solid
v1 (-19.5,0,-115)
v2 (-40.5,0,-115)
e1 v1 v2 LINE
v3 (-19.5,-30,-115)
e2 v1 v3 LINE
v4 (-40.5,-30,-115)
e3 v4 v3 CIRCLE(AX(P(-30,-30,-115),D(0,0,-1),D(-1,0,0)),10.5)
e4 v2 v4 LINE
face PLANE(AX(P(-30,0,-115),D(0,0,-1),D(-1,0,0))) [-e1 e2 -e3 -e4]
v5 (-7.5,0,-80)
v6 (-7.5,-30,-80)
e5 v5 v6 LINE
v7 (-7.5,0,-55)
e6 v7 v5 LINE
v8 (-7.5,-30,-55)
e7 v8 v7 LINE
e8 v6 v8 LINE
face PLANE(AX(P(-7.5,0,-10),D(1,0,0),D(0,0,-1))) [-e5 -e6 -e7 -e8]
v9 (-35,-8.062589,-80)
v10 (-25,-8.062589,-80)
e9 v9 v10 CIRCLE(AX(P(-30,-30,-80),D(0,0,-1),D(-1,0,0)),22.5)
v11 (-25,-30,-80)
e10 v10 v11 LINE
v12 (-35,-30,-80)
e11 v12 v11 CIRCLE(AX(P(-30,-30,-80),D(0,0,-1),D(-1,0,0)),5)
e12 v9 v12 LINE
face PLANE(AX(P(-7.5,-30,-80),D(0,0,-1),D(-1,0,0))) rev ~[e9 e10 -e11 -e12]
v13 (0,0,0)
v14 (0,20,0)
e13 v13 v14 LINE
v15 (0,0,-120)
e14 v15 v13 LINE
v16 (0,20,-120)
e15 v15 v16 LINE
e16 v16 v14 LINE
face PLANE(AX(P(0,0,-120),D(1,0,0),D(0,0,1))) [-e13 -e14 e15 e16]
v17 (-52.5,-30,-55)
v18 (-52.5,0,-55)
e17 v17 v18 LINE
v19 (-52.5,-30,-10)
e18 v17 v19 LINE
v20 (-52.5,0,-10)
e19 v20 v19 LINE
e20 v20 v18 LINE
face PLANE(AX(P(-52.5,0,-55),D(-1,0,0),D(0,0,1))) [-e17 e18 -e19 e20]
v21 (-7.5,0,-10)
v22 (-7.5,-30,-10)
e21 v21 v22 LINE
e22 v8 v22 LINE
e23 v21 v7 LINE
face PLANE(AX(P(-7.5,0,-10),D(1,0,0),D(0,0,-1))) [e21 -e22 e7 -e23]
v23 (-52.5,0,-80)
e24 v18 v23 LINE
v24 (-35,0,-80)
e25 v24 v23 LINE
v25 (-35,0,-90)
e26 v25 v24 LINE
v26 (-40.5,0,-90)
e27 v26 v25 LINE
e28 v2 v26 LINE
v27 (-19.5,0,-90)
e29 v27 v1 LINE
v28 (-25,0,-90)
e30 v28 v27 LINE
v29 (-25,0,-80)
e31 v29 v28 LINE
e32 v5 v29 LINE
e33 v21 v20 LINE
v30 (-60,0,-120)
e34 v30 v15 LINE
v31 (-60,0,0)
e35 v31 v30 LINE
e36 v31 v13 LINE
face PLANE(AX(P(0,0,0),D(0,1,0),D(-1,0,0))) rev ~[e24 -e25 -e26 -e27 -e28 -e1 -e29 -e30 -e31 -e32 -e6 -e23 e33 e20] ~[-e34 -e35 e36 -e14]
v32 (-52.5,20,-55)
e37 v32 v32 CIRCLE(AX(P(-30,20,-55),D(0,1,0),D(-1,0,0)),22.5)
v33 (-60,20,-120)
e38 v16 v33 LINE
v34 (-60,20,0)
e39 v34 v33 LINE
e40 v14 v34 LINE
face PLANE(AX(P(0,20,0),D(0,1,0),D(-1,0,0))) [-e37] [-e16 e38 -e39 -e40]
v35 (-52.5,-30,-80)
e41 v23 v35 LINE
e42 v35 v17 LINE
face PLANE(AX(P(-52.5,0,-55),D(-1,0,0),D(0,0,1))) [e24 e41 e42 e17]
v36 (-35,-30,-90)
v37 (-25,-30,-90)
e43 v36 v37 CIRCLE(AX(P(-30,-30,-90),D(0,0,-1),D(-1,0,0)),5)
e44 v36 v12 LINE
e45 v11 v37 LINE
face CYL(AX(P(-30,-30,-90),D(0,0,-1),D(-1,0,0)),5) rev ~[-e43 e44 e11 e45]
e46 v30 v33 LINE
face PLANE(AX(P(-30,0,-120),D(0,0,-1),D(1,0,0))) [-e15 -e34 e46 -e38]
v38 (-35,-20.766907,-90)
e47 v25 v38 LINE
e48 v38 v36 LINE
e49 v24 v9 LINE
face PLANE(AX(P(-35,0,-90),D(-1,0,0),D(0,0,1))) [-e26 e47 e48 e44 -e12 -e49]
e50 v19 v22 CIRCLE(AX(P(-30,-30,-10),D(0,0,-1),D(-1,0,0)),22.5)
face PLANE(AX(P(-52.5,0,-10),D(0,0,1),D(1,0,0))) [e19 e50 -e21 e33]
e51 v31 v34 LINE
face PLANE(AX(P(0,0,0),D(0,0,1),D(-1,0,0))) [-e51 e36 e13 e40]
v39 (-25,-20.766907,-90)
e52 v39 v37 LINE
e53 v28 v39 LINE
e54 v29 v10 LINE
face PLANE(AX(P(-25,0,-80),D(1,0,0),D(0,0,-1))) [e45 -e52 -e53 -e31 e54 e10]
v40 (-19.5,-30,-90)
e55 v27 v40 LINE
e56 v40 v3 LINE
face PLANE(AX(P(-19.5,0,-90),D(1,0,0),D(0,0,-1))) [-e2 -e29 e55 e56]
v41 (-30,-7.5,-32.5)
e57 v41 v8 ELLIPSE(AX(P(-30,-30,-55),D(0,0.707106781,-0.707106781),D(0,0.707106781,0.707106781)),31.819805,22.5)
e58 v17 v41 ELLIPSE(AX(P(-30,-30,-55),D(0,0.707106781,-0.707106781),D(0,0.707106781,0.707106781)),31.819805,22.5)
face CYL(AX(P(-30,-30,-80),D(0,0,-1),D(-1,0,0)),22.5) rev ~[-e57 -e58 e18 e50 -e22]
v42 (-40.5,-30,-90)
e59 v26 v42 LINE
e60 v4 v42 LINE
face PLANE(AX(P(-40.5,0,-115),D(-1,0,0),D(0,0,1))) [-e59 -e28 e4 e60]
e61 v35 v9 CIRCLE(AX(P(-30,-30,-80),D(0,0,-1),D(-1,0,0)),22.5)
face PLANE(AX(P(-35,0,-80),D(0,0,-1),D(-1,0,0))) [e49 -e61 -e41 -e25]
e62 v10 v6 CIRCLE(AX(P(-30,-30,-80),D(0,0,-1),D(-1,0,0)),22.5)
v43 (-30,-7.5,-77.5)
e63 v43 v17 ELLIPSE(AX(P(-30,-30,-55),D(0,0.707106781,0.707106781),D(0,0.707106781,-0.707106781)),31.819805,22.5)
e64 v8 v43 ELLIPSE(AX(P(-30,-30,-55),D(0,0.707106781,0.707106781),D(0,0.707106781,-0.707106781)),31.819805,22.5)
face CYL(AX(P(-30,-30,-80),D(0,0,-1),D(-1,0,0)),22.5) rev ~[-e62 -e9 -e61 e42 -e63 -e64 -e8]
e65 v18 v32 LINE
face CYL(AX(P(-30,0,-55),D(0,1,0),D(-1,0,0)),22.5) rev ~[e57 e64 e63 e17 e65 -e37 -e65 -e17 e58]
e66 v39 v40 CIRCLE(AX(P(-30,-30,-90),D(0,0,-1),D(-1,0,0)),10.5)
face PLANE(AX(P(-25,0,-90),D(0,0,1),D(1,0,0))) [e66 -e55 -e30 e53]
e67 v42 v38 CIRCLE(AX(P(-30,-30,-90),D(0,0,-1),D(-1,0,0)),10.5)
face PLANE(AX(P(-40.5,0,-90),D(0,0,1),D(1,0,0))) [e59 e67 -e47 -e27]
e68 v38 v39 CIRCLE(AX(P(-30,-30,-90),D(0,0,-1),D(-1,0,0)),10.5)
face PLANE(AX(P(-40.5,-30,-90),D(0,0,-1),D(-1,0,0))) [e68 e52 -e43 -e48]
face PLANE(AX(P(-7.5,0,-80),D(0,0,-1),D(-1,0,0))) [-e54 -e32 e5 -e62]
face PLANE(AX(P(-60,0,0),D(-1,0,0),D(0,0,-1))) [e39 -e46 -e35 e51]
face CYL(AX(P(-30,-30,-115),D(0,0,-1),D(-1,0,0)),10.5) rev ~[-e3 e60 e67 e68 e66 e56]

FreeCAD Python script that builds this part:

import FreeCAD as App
import Part
import Sketcher

V = App.Vector
Q = App.Units.Quantity

doc = App.newDocument("Part")
body = doc.addObject("PartDesign::Body", "Body")

sketch1 = body.newObject("Sketcher::SketchObject", "Sketch")
sketch1.AttachmentSupport = (doc.getObject("XZ_Plane"), [""])
sketch1.MapMode = "FlatFace"
sketch1.addGeometry([
    Part.LineSegment(V(0, 0, 0), V(0, -120, 0)),
    Part.LineSegment(V(0, -120, 0), V(-60, -120, 0)),
    Part.LineSegment(V(-60, -120, 0), V(-60, 0, 0)),
    Part.LineSegment(V(-60, 0, 0), V(0, 0, 0)),
], False)
sketch1.addConstraint([
    Sketcher.Constraint("Coincident", 0, 2, 1, 1),
    Sketcher.Constraint("Coincident", 1, 2, 2, 1),
    Sketcher.Constraint("Coincident", 2, 2, 3, 1),
    Sketcher.Constraint("Coincident", 3, 2, 0, 1),
    Sketcher.Constraint("Vertical", 0),
    Sketcher.Constraint("Horizontal", 1),
    Sketcher.Constraint("Vertical", 2),
    Sketcher.Constraint("Horizontal", 3),
    Sketcher.Constraint("Coincident", 3, 2, -1, 1),
    Sketcher.Constraint("DistanceX", 1, 2, 1, 1, Q("60 mm")),
    Sketcher.Constraint("DistanceY", 0, 2, 0, 1, Q("120 mm")),
])
pad1 = body.newObject("PartDesign::Pad", "Pad")
pad1.Profile = sketch1
pad1.Length = 20
pad1.Reversed = True

sketch2 = body.newObject("Sketcher::SketchObject", "Sketch001")
sketch2.AttachmentSupport = (doc.getObject("XZ_Plane"), [""])
sketch2.MapMode = "FlatFace"
sketch2.addGeometry([
    Part.LineSegment(V(-52.5, -10, 0), V(-7.5, -10, 0)),
    Part.LineSegment(V(-7.5, -10, 0), V(-7.5, -80, 0)),
    Part.LineSegment(V(-7.5, -80, 0), V(-25, -80, 0)),
    Part.LineSegment(V(-25, -80, 0), V(-25, -90, 0)),
    Part.LineSegment(V(-25, -90, 0), V(-19.5, -90, 0)),
    Part.LineSegment(V(-19.5, -90, 0), V(-19.5, -115, 0)),
    Part.LineSegment(V(-19.5, -115, 0), V(-40.5, -115, 0)),
    Part.LineSegment(V(-40.5, -115, 0), V(-40.5, -90, 0)),
    Part.LineSegment(V(-40.5, -90, 0), V(-35, -90, 0)),
    Part.LineSegment(V(-35, -90, 0), V(-35, -80, 0)),
    Part.LineSegment(V(-35, -80, 0), V(-52.5, -80, 0)),
    Part.LineSegment(V(-52.5, -80, 0), V(-52.5, -10, 0)),
], False)
sketch2.addConstraint([
    Sketcher.Constraint("Coincident", 0, 2, 1, 1),
    Sketcher.Constraint("Coincident", 1, 2, 2, 1),
    Sketcher.Constraint("Coincident", 2, 2, 3, 1),
    Sketcher.Constraint("Coincident", 3, 2, 4, 1),
    Sketcher.Constraint("Coincident", 4, 2, 5, 1),
    Sketcher.Constraint("Coincident", 5, 2, 6, 1),
    Sketcher.Constraint("Coincident", 6, 2, 7, 1),
    Sketcher.Constraint("Coincident", 7, 2, 8, 1),
    Sketcher.Constraint("Coincident", 8, 2, 9, 1),
    Sketcher.Constraint("Coincident", 9, 2, 10, 1),
    Sketcher.Constraint("Coincident", 10, 2, 11, 1),
    Sketcher.Constraint("Coincident", 11, 2, 0, 1),
    Sketcher.Constraint("Horizontal", 0),
    Sketcher.Constraint("Vertical", 1),
    Sketcher.Constraint("Horizontal", 2),
    Sketcher.Constraint("Vertical", 3),
    Sketcher.Constraint("Horizontal", 4),
    Sketcher.Constraint("Vertical", 5),
    Sketcher.Constraint("Horizontal", 6),
    Sketcher.Constraint("Vertical", 7),
    Sketcher.Constraint("Horizontal", 8),
    Sketcher.Constraint("Vertical", 9),
    Sketcher.Constraint("Horizontal", 10),
    Sketcher.Constraint("Vertical", 11),
    Sketcher.Constraint("Horizontal", 4, 2, 7, 2),
    Sketcher.Constraint("Horizontal", 2, 2, 9, 2),
    Sketcher.Constraint("Equal", 4, 8),
    Sketcher.Constraint("Equal", 2, 10),
    Sketcher.Constraint("DistanceX", 0, 1, 0, 2, Q("45 mm")),
    Sketcher.Constraint("DistanceX", 6, 2, 6, 1, Q("21 mm")),
    Sketcher.Constraint("DistanceY", 1, 2, 1, 1, Q("70 mm")),
    Sketcher.Constraint("DistanceY", 3, 2, 3, 1, Q("10 mm")),
    Sketcher.Constraint("DistanceY", 5, 2, 5, 1, Q("25 mm")),
    Sketcher.Constraint("DistanceY", 0, 2, -1, 1, Q("10 mm")),
    Sketcher.Constraint("DistanceX", 2, 2, -1, 1, Q("25 mm")),
    Sketcher.Constraint("DistanceX", 8, 2, -1, 1, Q("35 mm")),
])
pad2 = body.newObject("PartDesign::Pad", "Pad001")
pad2.Profile = sketch2
pad2.Length = 30

sketch3 = body.newObject("Sketcher::SketchObject", "Sketch002")
sketch3.AttachmentSupport = (doc.getObject("XZ_Plane"), [""])
sketch3.MapMode = "FlatFace"
sketch3.addGeometry(Part.Circle(V(-30, -55, 0), V(0, 0, 1), 22.5), False)
sketch3.addConstraint([
    Sketcher.Constraint("Diameter", 0, Q("45 mm")),
    Sketcher.Constraint("DistanceX", 0, 3, -1, 1, Q("30 mm")),
    Sketcher.Constraint("DistanceY", 0, 3, -1, 1, Q("55 mm")),
])
pocket1 = body.newObject("PartDesign::Pocket", "Pocket")
pocket1.Profile = sketch3
pocket1.Type = "ThroughAll"
pocket1.Midplane = True

sketch4 = body.newObject("Sketcher::SketchObject", "Sketch003")
sketch4.AttachmentSupport = (doc.getObject("XY_Plane"), [""])
sketch4.MapMode = "FlatFace"
sketch4.AttachmentOffset = App.Placement(V(0, 0, -115), App.Rotation())
sketch4.addGeometry(Part.Circle(V(-30, -30, 0), V(0, 0, 1), 10.5), False)
sketch4.addConstraint([
    Sketcher.Constraint("Diameter", 0, Q("21 mm")),
    Sketcher.Constraint("DistanceX", 0, 3, -1, 1, Q("30 mm")),
    Sketcher.Constraint("DistanceY", 0, 3, -1, 1, Q("30 mm")),
])
pocket2 = body.newObject("PartDesign::Pocket", "Pocket001")
pocket2.Profile = sketch4
pocket2.Length = 25
pocket2.Reversed = True

sketch5 = body.newObject("Sketcher::SketchObject", "Sketch004")
sketch5.AttachmentSupport = (doc.getObject("XY_Plane"), [""])
sketch5.MapMode = "FlatFace"
sketch5.AttachmentOffset = App.Placement(V(0, 0, -80), App.Rotation())
sketch5.addGeometry(Part.Circle(V(-30, -30, 0), V(0, 0, 1), 22.5), False)
sketch5.addConstraint([
    Sketcher.Constraint("Diameter", 0, Q("45 mm")),
    Sketcher.Constraint("DistanceX", 0, 3, -1, 1, Q("30 mm")),
    Sketcher.Constraint("DistanceY", 0, 3, -1, 1, Q("30 mm")),
])
pocket3 = body.newObject("PartDesign::Pocket", "Pocket002")
pocket3.Profile = sketch5
pocket3.Length = 70
pocket3.Reversed = True

sketch6 = body.newObject("Sketcher::SketchObject", "Sketch005")
sketch6.AttachmentSupport = (doc.getObject("XY_Plane"), [""])
sketch6.MapMode = "FlatFace"
sketch6.AttachmentOffset = App.Placement(V(0, 0, -90), App.Rotation())
sketch6.addGeometry(Part.Circle(V(-30, -30, 0), V(0, 0, 1), 5), False)
sketch6.addConstraint([
    Sketcher.Constraint("Diameter", 0, Q("10 mm")),
    Sketcher.Constraint("DistanceX", 0, 3, -1, 1, Q("30 mm")),
    Sketcher.Constraint("DistanceY", 0, 3, -1, 1, Q("30 mm")),
])
pocket4 = body.newObject("PartDesign::Pocket", "Pocket003")
pocket4.Profile = sketch6
pocket4.Length = 10
pocket4.Reversed = True

doc.recompute()
